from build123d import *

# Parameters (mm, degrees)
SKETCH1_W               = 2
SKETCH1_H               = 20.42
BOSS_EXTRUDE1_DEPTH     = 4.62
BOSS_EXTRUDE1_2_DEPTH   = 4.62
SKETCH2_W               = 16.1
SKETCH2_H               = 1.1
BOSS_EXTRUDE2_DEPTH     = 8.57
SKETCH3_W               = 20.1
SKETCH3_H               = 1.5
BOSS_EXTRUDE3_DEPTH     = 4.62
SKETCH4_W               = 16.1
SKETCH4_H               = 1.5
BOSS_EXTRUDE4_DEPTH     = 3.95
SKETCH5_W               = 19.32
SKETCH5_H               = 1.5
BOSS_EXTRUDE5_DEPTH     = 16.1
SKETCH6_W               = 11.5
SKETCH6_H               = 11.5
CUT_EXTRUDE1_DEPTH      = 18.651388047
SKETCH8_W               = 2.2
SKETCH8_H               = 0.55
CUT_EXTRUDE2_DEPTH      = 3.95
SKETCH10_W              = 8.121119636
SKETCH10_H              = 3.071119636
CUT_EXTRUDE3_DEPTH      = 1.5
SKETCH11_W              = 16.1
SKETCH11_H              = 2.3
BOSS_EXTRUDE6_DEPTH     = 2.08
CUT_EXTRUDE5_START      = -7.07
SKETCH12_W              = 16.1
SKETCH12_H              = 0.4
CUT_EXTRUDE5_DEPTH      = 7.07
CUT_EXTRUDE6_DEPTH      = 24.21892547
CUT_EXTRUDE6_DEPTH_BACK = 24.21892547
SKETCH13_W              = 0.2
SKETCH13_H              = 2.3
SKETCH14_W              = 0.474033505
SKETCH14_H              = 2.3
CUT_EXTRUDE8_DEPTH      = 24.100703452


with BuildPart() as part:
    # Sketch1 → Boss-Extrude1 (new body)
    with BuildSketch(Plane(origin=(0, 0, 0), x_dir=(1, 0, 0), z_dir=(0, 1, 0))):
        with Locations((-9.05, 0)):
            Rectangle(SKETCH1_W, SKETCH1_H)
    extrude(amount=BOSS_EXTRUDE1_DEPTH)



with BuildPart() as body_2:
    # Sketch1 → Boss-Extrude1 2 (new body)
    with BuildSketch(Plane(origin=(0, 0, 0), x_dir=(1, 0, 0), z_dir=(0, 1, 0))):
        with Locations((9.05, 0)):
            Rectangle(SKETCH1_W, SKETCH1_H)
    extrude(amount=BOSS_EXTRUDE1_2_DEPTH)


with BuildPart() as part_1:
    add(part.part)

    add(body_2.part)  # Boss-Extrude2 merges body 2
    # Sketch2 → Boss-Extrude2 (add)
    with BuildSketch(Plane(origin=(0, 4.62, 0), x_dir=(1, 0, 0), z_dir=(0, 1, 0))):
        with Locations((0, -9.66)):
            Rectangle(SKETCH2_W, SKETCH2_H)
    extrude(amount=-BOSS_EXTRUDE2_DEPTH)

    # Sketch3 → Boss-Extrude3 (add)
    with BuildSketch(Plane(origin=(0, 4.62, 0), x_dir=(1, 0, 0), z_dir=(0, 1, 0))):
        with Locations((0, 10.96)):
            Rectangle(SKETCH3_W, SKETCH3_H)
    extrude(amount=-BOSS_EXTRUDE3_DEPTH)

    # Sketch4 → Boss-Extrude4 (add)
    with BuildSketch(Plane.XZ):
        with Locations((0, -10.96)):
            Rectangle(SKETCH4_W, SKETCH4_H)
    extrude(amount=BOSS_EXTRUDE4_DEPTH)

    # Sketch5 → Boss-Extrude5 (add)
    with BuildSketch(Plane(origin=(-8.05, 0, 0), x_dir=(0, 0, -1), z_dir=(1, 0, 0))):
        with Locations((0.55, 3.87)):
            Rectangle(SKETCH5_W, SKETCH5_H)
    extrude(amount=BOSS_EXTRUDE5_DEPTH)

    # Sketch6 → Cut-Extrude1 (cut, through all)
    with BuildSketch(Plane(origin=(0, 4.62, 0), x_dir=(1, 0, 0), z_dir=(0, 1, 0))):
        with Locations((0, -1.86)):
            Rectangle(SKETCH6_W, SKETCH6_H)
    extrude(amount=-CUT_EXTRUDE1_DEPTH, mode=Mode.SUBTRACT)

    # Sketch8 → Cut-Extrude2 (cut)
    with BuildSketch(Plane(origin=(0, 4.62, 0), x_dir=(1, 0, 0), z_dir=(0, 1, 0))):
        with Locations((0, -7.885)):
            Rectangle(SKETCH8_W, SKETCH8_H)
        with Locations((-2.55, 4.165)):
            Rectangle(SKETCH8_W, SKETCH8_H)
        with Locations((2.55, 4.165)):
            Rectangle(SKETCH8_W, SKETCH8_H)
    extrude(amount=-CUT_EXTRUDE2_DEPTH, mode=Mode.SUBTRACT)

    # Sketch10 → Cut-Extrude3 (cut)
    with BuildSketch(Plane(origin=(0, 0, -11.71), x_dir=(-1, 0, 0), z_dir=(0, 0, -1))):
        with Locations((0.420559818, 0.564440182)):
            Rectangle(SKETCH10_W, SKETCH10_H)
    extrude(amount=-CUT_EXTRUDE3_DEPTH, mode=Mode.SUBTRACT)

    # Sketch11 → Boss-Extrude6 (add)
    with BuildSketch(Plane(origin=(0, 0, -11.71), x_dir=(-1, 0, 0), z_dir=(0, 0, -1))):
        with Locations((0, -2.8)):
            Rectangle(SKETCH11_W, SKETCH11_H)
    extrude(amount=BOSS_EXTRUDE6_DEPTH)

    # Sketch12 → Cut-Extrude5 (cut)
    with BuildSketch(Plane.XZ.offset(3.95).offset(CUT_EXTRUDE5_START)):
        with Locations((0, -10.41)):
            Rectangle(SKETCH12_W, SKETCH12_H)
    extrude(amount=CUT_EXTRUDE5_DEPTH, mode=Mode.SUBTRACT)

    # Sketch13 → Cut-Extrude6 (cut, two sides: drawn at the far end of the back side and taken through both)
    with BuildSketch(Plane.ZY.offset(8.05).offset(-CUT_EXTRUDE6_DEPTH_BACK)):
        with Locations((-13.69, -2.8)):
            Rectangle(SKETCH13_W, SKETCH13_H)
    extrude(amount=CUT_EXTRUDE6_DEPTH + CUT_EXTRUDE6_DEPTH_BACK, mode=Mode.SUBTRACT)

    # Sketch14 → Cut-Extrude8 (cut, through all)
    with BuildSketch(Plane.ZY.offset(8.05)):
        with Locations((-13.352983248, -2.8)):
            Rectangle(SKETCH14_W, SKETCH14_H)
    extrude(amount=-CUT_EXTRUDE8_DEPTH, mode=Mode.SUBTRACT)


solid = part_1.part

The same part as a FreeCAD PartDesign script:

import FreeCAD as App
import Part
import Sketcher

V = App.Vector

doc = App.newDocument("Part")
body = doc.addObject("PartDesign::Body", "Body")

# Sketch on XZ plane
sketch1 = body.newObject("Sketcher::SketchObject", "Sketch")
sketch1.AttachmentSupport = (doc.getObject("XZ_Plane"), [""])
sketch1.MapMode = "FlatFace"
sketch1.addGeometry([
    Part.LineSegment(V(-10.1, -10.2, 0), V(-10.1, 10.2, 0)),
    Part.LineSegment(V(-10.1, 10.2, 0), V(-8.1, 10.2, 0)),
    Part.LineSegment(V(-8.1, 10.2, 0), V(-8.1, -10.2, 0)),
    Part.LineSegment(V(-8.1, -10.2, 0), V(-10.1, -10.2, 0)),
], False)
sketch1.addConstraint([
    Sketcher.Constraint("Coincident", 0, 2, 1, 1),
    Sketcher.Constraint("Coincident", 1, 2, 2, 1),
    Sketcher.Constraint("Coincident", 2, 2, 3, 1),
    Sketcher.Constraint("Coincident", 3, 2, 0, 1),
    Sketcher.Constraint("Vertical", 0),
    Sketcher.Constraint("Horizontal", 1),
    Sketcher.Constraint("Vertical", 2),
    Sketcher.Constraint("Horizontal", 3),
    Sketcher.Constraint("DistanceX", 1, 1, 1, 2, 2.0),
    Sketcher.Constraint("DistanceY", 0, 1, 0, 2, 20.42),
    Sketcher.Constraint("DistanceX", 0, 2, -1, 1, 10.05),
    Sketcher.Constraint("DistanceY", -1, 1, 0, 2, 10.21),
])
pad1 = body.newObject("PartDesign::Pad", "Pad")
pad1.Profile = sketch1
pad1.Length = 4.62
pad1.Reversed = True
body2 = doc.addObject("PartDesign::Body", "Body001")

# Sketch on XZ plane
sketch2 = body2.newObject("Sketcher::SketchObject", "Sketch001")
sketch2.AttachmentSupport = (doc.getObject("XZ_Plane001"), [""])
sketch2.MapMode = "FlatFace"
sketch2.addGeometry([
    Part.LineSegment(V(8.1, -10.2, 0), V(8.1, 10.2, 0)),
    Part.LineSegment(V(8.1, 10.2, 0), V(10.1, 10.2, 0)),
    Part.LineSegment(V(10.1, 10.2, 0), V(10.1, -10.2, 0)),
    Part.LineSegment(V(10.1, -10.2, 0), V(8.1, -10.2, 0)),
], False)
sketch2.addConstraint([
    Sketcher.Constraint("Coincident", 0, 2, 1, 1),
    Sketcher.Constraint("Coincident", 1, 2, 2, 1),
    Sketcher.Constraint("Coincident", 2, 2, 3, 1),
    Sketcher.Constraint("Coincident", 3, 2, 0, 1),
    Sketcher.Constraint("Vertical", 0),
    Sketcher.Constraint("Horizontal", 1),
    Sketcher.Constraint("Vertical", 2),
    Sketcher.Constraint("Horizontal", 3),
    Sketcher.Constraint("DistanceX", 1, 1, 1, 2, 2.0),
    Sketcher.Constraint("DistanceY", 0, 1, 0, 2, 20.42),
    Sketcher.Constraint("DistanceX", -1, 1, 0, 2, 8.05),
    Sketcher.Constraint("DistanceY", -1, 1, 0, 2, 10.21),
])
pad2 = body2.newObject("PartDesign::Pad", "Pad001")
pad2.Profile = sketch2
pad2.Length = 4.62
pad2.Reversed = True
body.AllowCompound = True
doc.recompute()

boolean = body.newObject("PartDesign::Boolean", "Boolean")
boolean.Type = "Fuse"
boolean.addObjects([body2])

# Sketch on XZ plane
sketch3 = body.newObject("Sketcher::SketchObject", "Sketch002")
sketch3.AttachmentSupport = (doc.getObject("XZ_Plane"), [""])
sketch3.MapMode = "FlatFace"
sketch3.AttachmentOffset = App.Placement(V(0, 0, -4.62), App.Rotation())
sketch3.addGeometry([
    Part.LineSegment(V(-8.1, 9.1, 0), V(-8.1, 10.2, 0)),
    Part.LineSegment(V(-8.1, 10.2, 0), V(8.1, 10.2, 0)),
    Part.LineSegment(V(8.1, 10.2, 0), V(8.1, 9.1, 0)),
    Part.LineSegment(V(8.1, 9.1, 0), V(-8.1, 9.1, 0)),
], False)
sketch3.addConstraint([
    Sketcher.Constraint("Coincident", 0, 2, 1, 1),
    Sketcher.Constraint("Coincident", 1, 2, 2, 1),
    Sketcher.Constraint("Coincident", 2, 2, 3, 1),
    Sketcher.Constraint("Coincident", 3, 2, 0, 1),
    Sketcher.Constraint("Vertical", 0),
    Sketcher.Constraint("Horizontal", 1),
    Sketcher.Constraint("Vertical", 2),
    Sketcher.Constraint("Horizontal", 3),
    Sketcher.Constraint("DistanceX", 1, 1, 1, 2, 16.1),
    Sketcher.Constraint("DistanceY", 0, 1, 0, 2, 1.1),
    Sketcher.Constraint("DistanceX", 0, 2, -1, 1, 8.05),
    Sketcher.Constraint("DistanceY", -1, 1, 0, 2, 10.21),
])
pad3 = body.newObject("PartDesign::Pad", "Pad002")
pad3.Profile = sketch3
pad3.Length = 8.57

# Sketch on XZ plane
sketch4 = body.newObject("Sketcher::SketchObject", "Sketch003")
sketch4.AttachmentSupport = (doc.getObject("XZ_Plane"), [""])
sketch4.MapMode = "FlatFace"
sketch4.AttachmentOffset = App.Placement(V(0, 0, -4.62), App.Rotation())
sketch4.addGeometry([
    Part.LineSegment(V(-10.1, -11.7, 0), V(-10.1, -10.2, 0)),
    Part.LineSegment(V(-10.1, -10.2, 0), V(10.1, -10.2, 0)),
    Part.LineSegment(V(10.1, -10.2, 0), V(10.1, -11.7, 0)),
    Part.LineSegment(V(10.1, -11.7, 0), V(-10.1, -11.7, 0)),
], False)
sketch4.addConstraint([
    Sketcher.Constraint("Coincident", 0, 2, 1, 1),
    Sketcher.Constraint("Coincident", 1, 2, 2, 1),
    Sketcher.Constraint("Coincident", 2, 2, 3, 1),
    Sketcher.Constraint("Coincident", 3, 2, 0, 1),
    Sketcher.Constraint("Vertical", 0),
    Sketcher.Constraint("Horizontal", 1),
    Sketcher.Constraint("Vertical", 2),
    Sketcher.Constraint("Horizontal", 3),
    Sketcher.Constraint("DistanceX", 1, 1, 1, 2, 20.1),
    Sketcher.Constraint("DistanceY", 0, 1, 0, 2, 1.5),
    Sketcher.Constraint("DistanceX", 0, 2, -1, 1, 10.05),
    Sketcher.Constraint("DistanceY", 0, 2, -1, 1, 10.21),
])
pad4 = body.newObject("PartDesign::Pad", "Pad003")
pad4.Profile = sketch4
pad4.Length = 4.62

# Sketch on XZ plane
sketch5 = body.newObject("Sketcher::SketchObject", "Sketch004")
sketch5.AttachmentSupport = (doc.getObject("XZ_Plane"), [""])
sketch5.MapMode = "FlatFace"
sketch5.addGeometry([
    Part.LineSegment(V(-8.1, -10.2, 0), V(-8.1, -11.7, 0)),
    Part.LineSegment(V(-8.1, -11.7, 0), V(8.1, -11.7, 0)),
    Part.LineSegment(V(8.1, -11.7, 0), V(8.1, -10.2, 0)),
    Part.LineSegment(V(8.1, -10.2, 0), V(-8.1, -10.2, 0)),
], False)
sketch5.addConstraint([
    Sketcher.Constraint("Coincident", 0, 2, 1, 1),
    Sketcher.Constraint("Coincident", 1, 2, 2, 1),
    Sketcher.Constraint("Coincident", 2, 2, 3, 1),
    Sketcher.Constraint("Coincident", 3, 2, 0, 1),
    Sketcher.Constraint("Vertical", 0),
    Sketcher.Constraint("Horizontal", 1),
    Sketcher.Constraint("Vertical", 2),
    Sketcher.Constraint("Horizontal", 3),
    Sketcher.Constraint("DistanceX", 1, 1, 1, 2, 16.1),
    Sketcher.Constraint("DistanceY", 0, 2, 0, 1, 1.5),
    Sketcher.Constraint("DistanceX", 0, 2, -1, 1, 8.05),
    Sketcher.Constraint("DistanceY", 0, 2, -1, 1, 11.71),
])
pad5 = body.newObject("PartDesign::Pad", "Pad004")
pad5.Profile = sketch5
pad5.Length = 3.95

# Sketch on YZ plane
sketch6 = body.newObject("Sketcher::SketchObject", "Sketch005")
sketch6.AttachmentSupport = (doc.getObject("YZ_Plane"), [""])
sketch6.MapMode = "FlatFace"
sketch6.AttachmentOffset = App.Placement(V(0, 0, -8.05), App.Rotation())
sketch6.addGeometry([
    Part.LineSegment(V(4.6, 9.1, 0), V(3.1, 9.1, 0)),
    Part.LineSegment(V(3.1, 9.1, 0), V(3.1, -10.2, 0)),
    Part.LineSegment(V(3.1, -10.2, 0), V(4.6, -10.2, 0)),
    Part.LineSegment(V(4.6, -10.2, 0), V(4.6, 9.1, 0)),
], False)
sketch6.addConstraint([
    Sketcher.Constraint("Coincident", 0, 2, 1, 1),
    Sketcher.Constraint("Coincident", 1, 2, 2, 1),
    Sketcher.Constraint("Coincident", 2, 2, 3, 1),
    Sketcher.Constraint("Coincident", 3, 2, 0, 1),
    Sketcher.Constraint("Horizontal", 0),
    Sketcher.Constraint("Vertical", 1),
    Sketcher.Constraint("Horizontal", 2),
    Sketcher.Constraint("Vertical", 3),
    Sketcher.Constraint("DistanceX", 0, 2, 0, 1, 1.5),
    Sketcher.Constraint("DistanceY", 1, 2, 1, 1, 19.32),
    Sketcher.Constraint("DistanceX", -1, 1, 0, 2, 3.12),
    Sketcher.Constraint("DistanceY", -1, 1, 0, 2, 9.11),
])
pad6 = body.newObject("PartDesign::Pad", "Pad005")
pad6.Profile = sketch6
pad6.Length = 16.1

# Sketch on XZ plane
sketch7 = body.newObject("Sketcher::SketchObject", "Sketch006")
sketch7.AttachmentSupport = (doc.getObject("XZ_Plane"), [""])
sketch7.MapMode = "FlatFace"
sketch7.AttachmentOffset = App.Placement(V(0, 0, -4.62), App.Rotation())
sketch7.addGeometry([
    Part.LineSegment(V(-6, -4, 0), V(-6, 8, 0)),
    Part.LineSegment(V(-6, 8, 0), V(6, 8, 0)),
    Part.LineSegment(V(6, 8, 0), V(6, -4, 0)),
    Part.LineSegment(V(6, -4, 0), V(-6, -4, 0)),
], False)
sketch7.addConstraint([
    Sketcher.Constraint("Coincident", 0, 2, 1, 1),
    Sketcher.Constraint("Coincident", 1, 2, 2, 1),
    Sketcher.Constraint("Coincident", 2, 2, 3, 1),
    Sketcher.Constraint("Coincident", 3, 2, 0, 1),
    Sketcher.Constraint("Vertical", 0),
    Sketcher.Constraint("Horizontal", 1),
    Sketcher.Constraint("Vertical", 2),
    Sketcher.Constraint("Horizontal", 3),
    Sketcher.Constraint("Equal", 3, 0),
    Sketcher.Constraint("DistanceX", 1, 1, 1, 2, 11.5),
    Sketcher.Constraint("DistanceX", 0, 2, -1, 1, 5.75),
    Sketcher.Constraint("DistanceY", -1, 1, 0, 2, 7.61),
])
pocket1 = body.newObject("PartDesign::Pocket", "Pocket")
pocket1.Profile = sketch7
pocket1.Type = "ThroughAll"
pocket1.Reversed = True

# Sketch on XZ plane
sketch8 = body.newObject("Sketcher::SketchObject", "Sketch007")
sketch8.AttachmentSupport = (doc.getObject("XZ_Plane"), [""])
sketch8.MapMode = "FlatFace"
sketch8.AttachmentOffset = App.Placement(V(0, 0, -4.62), App.Rotation())
sketch8.addGeometry([
    Part.LineSegment(V(-1.1, 7.6, 0), V(-1.1, 8.2, 0)),  # 0
    Part.LineSegment(V(-1.1, 8.2, 0), V(1.1, 8.2, 0)),  # 1
    Part.LineSegment(V(1.1, 8.2, 0), V(1.1, 7.6, 0)),  # 2
    Part.LineSegment(V(1.1, 7.6, 0), V(-1.1, 7.6, 0)),  # 3
    Part.LineSegment(V(-3.6, -4.4, 0), V(-3.6, -3.9, 0)),  # 4
    Part.LineSegment(V(-3.6, -3.9, 0), V(-1.4, -3.9, 0)),  # 5
    Part.LineSegment(V(-1.4, -3.9, 0), V(-1.4, -4.4, 0)),  # 6
    Part.LineSegment(V(-1.4, -4.4, 0), V(-3.6, -4.4, 0)),  # 7
    Part.LineSegment(V(1.4, -4.4, 0), V(1.4, -3.9, 0)),  # 8
    Part.LineSegment(V(1.4, -3.9, 0), V(3.6, -3.9, 0)),  # 9
    Part.LineSegment(V(3.6, -3.9, 0), V(3.6, -4.4, 0)),  # 10
    Part.LineSegment(V(3.6, -4.4, 0), V(1.4, -4.4, 0)),  # 11
], False)
sketch8.addConstraint([
    Sketcher.Constraint("Coincident", 0, 2, 1, 1),
    Sketcher.Constraint("Coincident", 1, 2, 2, 1),
    Sketcher.Constraint("Coincident", 2, 2, 3, 1),
    Sketcher.Constraint("Coincident", 3, 2, 0, 1),
    Sketcher.Constraint("Coincident", 4, 2, 5, 1),
    Sketcher.Constraint("Coincident", 5, 2, 6, 1),
    Sketcher.Constraint("Coincident", 6, 2, 7, 1),
    Sketcher.Constraint("Coincident", 7, 2, 4, 1),
    Sketcher.Constraint("Coincident", 8, 2, 9, 1),
    Sketcher.Constraint("Coincident", 9, 2, 10, 1),
    Sketcher.Constraint("Coincident", 10, 2, 11, 1),
    Sketcher.Constraint("Coincident", 11, 2, 8, 1),
    Sketcher.Constraint("Vertical", 0),
    Sketcher.Constraint("Horizontal", 1),
    Sketcher.Constraint("Vertical", 2),
    Sketcher.Constraint("Horizontal", 3),
    Sketcher.Constraint("Vertical", 4),
    Sketcher.Constraint("Horizontal", 5),
    Sketcher.Constraint("Vertical", 6),
    Sketcher.Constraint("Horizontal", 7),
    Sketcher.Constraint("Vertical", 8),
    Sketcher.Constraint("Horizontal", 9),
    Sketcher.Constraint("Vertical", 10),
    Sketcher.Constraint("Horizontal", 11),
    Sketcher.Constraint("Symmetric", 5, 2, 8, 2, -2),
    Sketcher.Constraint("Symmetric", 7, 2, 10, 2, -2),
    Sketcher.Constraint("Equal", 3, 5),
    Sketcher.Constraint("Equal", 2, 4),
    Sketcher.Constraint("DistanceX", 1, 1, 1, 2, 2.2),
    Sketcher.Constraint("DistanceY", 0, 1, 0, 2, 0.55),
    Sketcher.Constraint("DistanceX", 0, 2, -1, 1, 1.1),
    Sketcher.Constraint("DistanceY", 4, 2, 3, 2, 11.5),
    Sketcher.Constraint("DistanceX", 5, 2, 8, 2, 2.9),
    Sketcher.Constraint("DistanceY", -1, 1, 0, 2, 8.16),
])
pocket2 = body.newObject("PartDesign::Pocket", "Pocket001")
pocket2.Profile = sketch8
pocket2.Length = 3.95
pocket2.Reversed = True

# Sketch on XY plane
sketch9 = body.newObject("Sketcher::SketchObject", "Sketch008")
sketch9.AttachmentSupport = (doc.getObject("XY_Plane"), [""])
sketch9.MapMode = "FlatFace"
sketch9.AttachmentOffset = App.Placement(V(0, 0, -11.71), App.Rotation())
sketch9.addGeometry([
    Part.LineSegment(V(3.6, 2.1, 0), V(3.6, -1, 0)),
    Part.LineSegment(V(3.6, -1, 0), V(-4.5, -1, 0)),
    Part.LineSegment(V(-4.5, -1, 0), V(-4.5, 2.1, 0)),
    Part.LineSegment(V(-4.5, 2.1, 0), V(3.6, 2.1, 0)),
], False)
sketch9.addConstraint([
    Sketcher.Constraint("Coincident", 0, 2, 1, 1),
    Sketcher.Constraint("Coincident", 1, 2, 2, 1),
    Sketcher.Constraint("Coincident", 2, 2, 3, 1),
    Sketcher.Constraint("Coincident", 3, 2, 0, 1),
    Sketcher.Constraint("Vertical", 0),
    Sketcher.Constraint("Horizontal", 1),
    Sketcher.Constraint("Vertical", 2),
    Sketcher.Constraint("Horizontal", 3),
    Sketcher.Constraint("DistanceY", -1, 1, 2, 2, 2.1),
    Sketcher.Constraint("DistanceX", -1, 1, 0, 2, 3.64),
    Sketcher.Constraint("DistanceX", 1, 2, 1, 1, 8.12112),
    Sketcher.Constraint("DistanceY", 0, 2, 0, 1, 3.07112),
])
pocket3 = body.newObject("PartDesign::Pocket", "Pocket002")
pocket3.Profile = sketch9
pocket3.Length = 1.5
pocket3.Reversed = True

# Sketch on XY plane
sketch10 = body.newObject("Sketcher::SketchObject", "Sketch009")
sketch10.AttachmentSupport = (doc.getObject("XY_Plane"), [""])
sketch10.MapMode = "FlatFace"
sketch10.AttachmentOffset = App.Placement(V(0, 0, -11.71), App.Rotation())
sketch10.addGeometry([
    Part.LineSegment(V(8.1, -1.6, 0), V(8.1, -4, 0)),
    Part.LineSegment(V(8.1, -4, 0), V(-8.1, -4, 0)),
    Part.LineSegment(V(-8.1, -4, 0), V(-8.1, -1.6, 0)),
    Part.LineSegment(V(-8.1, -1.6, 0), V(8.1, -1.6, 0)),
], False)
sketch10.addConstraint([
    Sketcher.Constraint("Coincident", 0, 2, 1, 1),
    Sketcher.Constraint("Coincident", 1, 2, 2, 1),
    Sketcher.Constraint("Coincident", 2, 2, 3, 1),
    Sketcher.Constraint("Coincident", 3, 2, 0, 1),
    Sketcher.Constraint("Vertical", 0),
    Sketcher.Constraint("Horizontal", 1),
    Sketcher.Constraint("Vertical", 2),
    Sketcher.Constraint("Horizontal", 3),
    Sketcher.Constraint("DistanceX", 1, 2, 1, 1, 16.1),
    Sketcher.Constraint("DistanceY", 0, 2, 0, 1, 2.3),
    Sketcher.Constraint("DistanceX", -1, 1, 0, 2, 8.05),
    Sketcher.Constraint("DistanceY", 0, 2, -1, 1, 3.95),
])
pad7 = body.newObject("PartDesign::Pad", "Pad006")
pad7.Profile = sketch10
pad7.Length = 2.08
pad7.Reversed = True

# Sketch on XZ plane
sketch11 = body.newObject("Sketcher::SketchObject", "Sketch010")
sketch11.AttachmentSupport = (doc.getObject("XZ_Plane"), [""])
sketch11.MapMode = "FlatFace"
sketch11.AttachmentOffset = App.Placement(V(0, 0, -3.12), App.Rotation())
sketch11.addGeometry([
    Part.LineSegment(V(-8.05, -10.21, 0), V(-8.05, -10.61, 0)),
    Part.LineSegment(V(-8.05, -10.61, 0), V(8.05, -10.61, 0)),
    Part.LineSegment(V(8.05, -10.61, 0), V(8.05, -10.21, 0)),
    Part.LineSegment(V(8.05, -10.21, 0), V(-8.05, -10.21, 0)),
], False)
sketch11.addConstraint([
    Sketcher.Constraint("Coincident", 0, 2, 1, 1),
    Sketcher.Constraint("Coincident", 1, 2, 2, 1),
    Sketcher.Constraint("Coincident", 2, 2, 3, 1),
    Sketcher.Constraint("Coincident", 3, 2, 0, 1),
    Sketcher.Constraint("Vertical", 0),
    Sketcher.Constraint("Horizontal", 1),
    Sketcher.Constraint("Vertical", 2),
    Sketcher.Constraint("Horizontal", 3),
    Sketcher.Constraint("DistanceX", 1, 1, 1, 2, 16.1),
    Sketcher.Constraint("DistanceY", 0, 2, 0, 1, 0.4),
    Sketcher.Constraint("DistanceX", 0, 2, -1, 1, 8.05),
    Sketcher.Constraint("DistanceY", 0, 2, -1, 1, 10.61),
])
pocket4 = body.newObject("PartDesign::Pocket", "Pocket003")
pocket4.Profile = sketch11
pocket4.Length = 7.07
pocket4.Reversed = True

# Sketch on YZ plane
sketch12 = body.newObject("Sketcher::SketchObject", "Sketch011")
sketch12.AttachmentSupport = (doc.getObject("YZ_Plane"), [""])
sketch12.MapMode = "FlatFace"
sketch12.AttachmentOffset = App.Placement(V(0, 0, -8.05), App.Rotation())
sketch12.addGeometry([
    Part.LineSegment(V(-1.65, -13.79, 0), V(-3.95, -13.79, 0)),
    Part.LineSegment(V(-3.95, -13.79, 0), V(-3.95, -13.59, 0)),
    Part.LineSegment(V(-3.95, -13.59, 0), V(-1.65, -13.59, 0)),
    Part.LineSegment(V(-1.65, -13.59, 0), V(-1.65, -13.79, 0)),
], False)
sketch12.addConstraint([
    Sketcher.Constraint("Coincident", 0, 2, 1, 1),
    Sketcher.Constraint("Coincident", 1, 2, 2, 1),
    Sketcher.Constraint("Coincident", 2, 2, 3, 1),
    Sketcher.Constraint("Coincident", 3, 2, 0, 1),
    Sketcher.Constraint("Horizontal", 0),
    Sketcher.Constraint("Vertical", 1),
    Sketcher.Constraint("Horizontal", 2),
    Sketcher.Constraint("Vertical", 3),
    Sketcher.Constraint("DistanceX", 0, 2, 0, 1, 2.3),
    Sketcher.Constraint("DistanceY", 1, 1, 1, 2, 0.2),
    Sketcher.Constraint("DistanceX", 0, 2, -1, 1, 3.95),
    Sketcher.Constraint("DistanceY", 0, 2, -1, 1, 13.79),
])
pocket5 = body.newObject("PartDesign::Pocket", "Pocket004")
pocket5.Profile = sketch12
pocket5.Type = "ThroughAll"
pocket5.Midplane = True

# Sketch on YZ plane
sketch13 = body.newObject("Sketcher::SketchObject", "Sketch012")
sketch13.AttachmentSupport = (doc.getObject("YZ_Plane"), [""])
sketch13.MapMode = "FlatFace"
sketch13.AttachmentOffset = App.Placement(V(0, 0, -8.05), App.Rotation())
sketch13.addGeometry([
    Part.LineSegment(V(-1.65, -13.59, 0), V(-3.95, -13.59, 0)),
    Part.LineSegment(V(-3.95, -13.59, 0), V(-3.95, -13.12, 0)),
    Part.LineSegment(V(-3.95, -13.12, 0), V(-1.65, -13.12, 0)),
    Part.LineSegment(V(-1.65, -13.12, 0), V(-1.65, -13.59, 0)),
], False)
sketch13.addConstraint([
    Sketcher.Constraint("Coincident", 0, 2, 1, 1),
    Sketcher.Constraint("Coincident", 1, 2, 2, 1),
    Sketcher.Constraint("Coincident", 2, 2, 3, 1),
    Sketcher.Constraint("Coincident", 3, 2, 0, 1),
    Sketcher.Constraint("Horizontal", 0),
    Sketcher.Constraint("Vertical", 1),
    Sketcher.Constraint("Horizontal", 2),
    Sketcher.Constraint("Vertical", 3),
    Sketcher.Constraint("DistanceX", 0, 2, 0, 1, 2.3),
    Sketcher.Constraint("DistanceX", 0, 2, -1, 1, 3.95),
    Sketcher.Constraint("DistanceY", 0, 2, -1, 1, 13.59),
    Sketcher.Constraint("DistanceY", 1, 1, 1, 2, 0.474034),
])
pocket6 = body.newObject("PartDesign::Pocket", "Pocket005")
pocket6.Profile = sketch13
pocket6.Type = "ThroughAll"
pocket6.Reversed = True

doc.recompute()
